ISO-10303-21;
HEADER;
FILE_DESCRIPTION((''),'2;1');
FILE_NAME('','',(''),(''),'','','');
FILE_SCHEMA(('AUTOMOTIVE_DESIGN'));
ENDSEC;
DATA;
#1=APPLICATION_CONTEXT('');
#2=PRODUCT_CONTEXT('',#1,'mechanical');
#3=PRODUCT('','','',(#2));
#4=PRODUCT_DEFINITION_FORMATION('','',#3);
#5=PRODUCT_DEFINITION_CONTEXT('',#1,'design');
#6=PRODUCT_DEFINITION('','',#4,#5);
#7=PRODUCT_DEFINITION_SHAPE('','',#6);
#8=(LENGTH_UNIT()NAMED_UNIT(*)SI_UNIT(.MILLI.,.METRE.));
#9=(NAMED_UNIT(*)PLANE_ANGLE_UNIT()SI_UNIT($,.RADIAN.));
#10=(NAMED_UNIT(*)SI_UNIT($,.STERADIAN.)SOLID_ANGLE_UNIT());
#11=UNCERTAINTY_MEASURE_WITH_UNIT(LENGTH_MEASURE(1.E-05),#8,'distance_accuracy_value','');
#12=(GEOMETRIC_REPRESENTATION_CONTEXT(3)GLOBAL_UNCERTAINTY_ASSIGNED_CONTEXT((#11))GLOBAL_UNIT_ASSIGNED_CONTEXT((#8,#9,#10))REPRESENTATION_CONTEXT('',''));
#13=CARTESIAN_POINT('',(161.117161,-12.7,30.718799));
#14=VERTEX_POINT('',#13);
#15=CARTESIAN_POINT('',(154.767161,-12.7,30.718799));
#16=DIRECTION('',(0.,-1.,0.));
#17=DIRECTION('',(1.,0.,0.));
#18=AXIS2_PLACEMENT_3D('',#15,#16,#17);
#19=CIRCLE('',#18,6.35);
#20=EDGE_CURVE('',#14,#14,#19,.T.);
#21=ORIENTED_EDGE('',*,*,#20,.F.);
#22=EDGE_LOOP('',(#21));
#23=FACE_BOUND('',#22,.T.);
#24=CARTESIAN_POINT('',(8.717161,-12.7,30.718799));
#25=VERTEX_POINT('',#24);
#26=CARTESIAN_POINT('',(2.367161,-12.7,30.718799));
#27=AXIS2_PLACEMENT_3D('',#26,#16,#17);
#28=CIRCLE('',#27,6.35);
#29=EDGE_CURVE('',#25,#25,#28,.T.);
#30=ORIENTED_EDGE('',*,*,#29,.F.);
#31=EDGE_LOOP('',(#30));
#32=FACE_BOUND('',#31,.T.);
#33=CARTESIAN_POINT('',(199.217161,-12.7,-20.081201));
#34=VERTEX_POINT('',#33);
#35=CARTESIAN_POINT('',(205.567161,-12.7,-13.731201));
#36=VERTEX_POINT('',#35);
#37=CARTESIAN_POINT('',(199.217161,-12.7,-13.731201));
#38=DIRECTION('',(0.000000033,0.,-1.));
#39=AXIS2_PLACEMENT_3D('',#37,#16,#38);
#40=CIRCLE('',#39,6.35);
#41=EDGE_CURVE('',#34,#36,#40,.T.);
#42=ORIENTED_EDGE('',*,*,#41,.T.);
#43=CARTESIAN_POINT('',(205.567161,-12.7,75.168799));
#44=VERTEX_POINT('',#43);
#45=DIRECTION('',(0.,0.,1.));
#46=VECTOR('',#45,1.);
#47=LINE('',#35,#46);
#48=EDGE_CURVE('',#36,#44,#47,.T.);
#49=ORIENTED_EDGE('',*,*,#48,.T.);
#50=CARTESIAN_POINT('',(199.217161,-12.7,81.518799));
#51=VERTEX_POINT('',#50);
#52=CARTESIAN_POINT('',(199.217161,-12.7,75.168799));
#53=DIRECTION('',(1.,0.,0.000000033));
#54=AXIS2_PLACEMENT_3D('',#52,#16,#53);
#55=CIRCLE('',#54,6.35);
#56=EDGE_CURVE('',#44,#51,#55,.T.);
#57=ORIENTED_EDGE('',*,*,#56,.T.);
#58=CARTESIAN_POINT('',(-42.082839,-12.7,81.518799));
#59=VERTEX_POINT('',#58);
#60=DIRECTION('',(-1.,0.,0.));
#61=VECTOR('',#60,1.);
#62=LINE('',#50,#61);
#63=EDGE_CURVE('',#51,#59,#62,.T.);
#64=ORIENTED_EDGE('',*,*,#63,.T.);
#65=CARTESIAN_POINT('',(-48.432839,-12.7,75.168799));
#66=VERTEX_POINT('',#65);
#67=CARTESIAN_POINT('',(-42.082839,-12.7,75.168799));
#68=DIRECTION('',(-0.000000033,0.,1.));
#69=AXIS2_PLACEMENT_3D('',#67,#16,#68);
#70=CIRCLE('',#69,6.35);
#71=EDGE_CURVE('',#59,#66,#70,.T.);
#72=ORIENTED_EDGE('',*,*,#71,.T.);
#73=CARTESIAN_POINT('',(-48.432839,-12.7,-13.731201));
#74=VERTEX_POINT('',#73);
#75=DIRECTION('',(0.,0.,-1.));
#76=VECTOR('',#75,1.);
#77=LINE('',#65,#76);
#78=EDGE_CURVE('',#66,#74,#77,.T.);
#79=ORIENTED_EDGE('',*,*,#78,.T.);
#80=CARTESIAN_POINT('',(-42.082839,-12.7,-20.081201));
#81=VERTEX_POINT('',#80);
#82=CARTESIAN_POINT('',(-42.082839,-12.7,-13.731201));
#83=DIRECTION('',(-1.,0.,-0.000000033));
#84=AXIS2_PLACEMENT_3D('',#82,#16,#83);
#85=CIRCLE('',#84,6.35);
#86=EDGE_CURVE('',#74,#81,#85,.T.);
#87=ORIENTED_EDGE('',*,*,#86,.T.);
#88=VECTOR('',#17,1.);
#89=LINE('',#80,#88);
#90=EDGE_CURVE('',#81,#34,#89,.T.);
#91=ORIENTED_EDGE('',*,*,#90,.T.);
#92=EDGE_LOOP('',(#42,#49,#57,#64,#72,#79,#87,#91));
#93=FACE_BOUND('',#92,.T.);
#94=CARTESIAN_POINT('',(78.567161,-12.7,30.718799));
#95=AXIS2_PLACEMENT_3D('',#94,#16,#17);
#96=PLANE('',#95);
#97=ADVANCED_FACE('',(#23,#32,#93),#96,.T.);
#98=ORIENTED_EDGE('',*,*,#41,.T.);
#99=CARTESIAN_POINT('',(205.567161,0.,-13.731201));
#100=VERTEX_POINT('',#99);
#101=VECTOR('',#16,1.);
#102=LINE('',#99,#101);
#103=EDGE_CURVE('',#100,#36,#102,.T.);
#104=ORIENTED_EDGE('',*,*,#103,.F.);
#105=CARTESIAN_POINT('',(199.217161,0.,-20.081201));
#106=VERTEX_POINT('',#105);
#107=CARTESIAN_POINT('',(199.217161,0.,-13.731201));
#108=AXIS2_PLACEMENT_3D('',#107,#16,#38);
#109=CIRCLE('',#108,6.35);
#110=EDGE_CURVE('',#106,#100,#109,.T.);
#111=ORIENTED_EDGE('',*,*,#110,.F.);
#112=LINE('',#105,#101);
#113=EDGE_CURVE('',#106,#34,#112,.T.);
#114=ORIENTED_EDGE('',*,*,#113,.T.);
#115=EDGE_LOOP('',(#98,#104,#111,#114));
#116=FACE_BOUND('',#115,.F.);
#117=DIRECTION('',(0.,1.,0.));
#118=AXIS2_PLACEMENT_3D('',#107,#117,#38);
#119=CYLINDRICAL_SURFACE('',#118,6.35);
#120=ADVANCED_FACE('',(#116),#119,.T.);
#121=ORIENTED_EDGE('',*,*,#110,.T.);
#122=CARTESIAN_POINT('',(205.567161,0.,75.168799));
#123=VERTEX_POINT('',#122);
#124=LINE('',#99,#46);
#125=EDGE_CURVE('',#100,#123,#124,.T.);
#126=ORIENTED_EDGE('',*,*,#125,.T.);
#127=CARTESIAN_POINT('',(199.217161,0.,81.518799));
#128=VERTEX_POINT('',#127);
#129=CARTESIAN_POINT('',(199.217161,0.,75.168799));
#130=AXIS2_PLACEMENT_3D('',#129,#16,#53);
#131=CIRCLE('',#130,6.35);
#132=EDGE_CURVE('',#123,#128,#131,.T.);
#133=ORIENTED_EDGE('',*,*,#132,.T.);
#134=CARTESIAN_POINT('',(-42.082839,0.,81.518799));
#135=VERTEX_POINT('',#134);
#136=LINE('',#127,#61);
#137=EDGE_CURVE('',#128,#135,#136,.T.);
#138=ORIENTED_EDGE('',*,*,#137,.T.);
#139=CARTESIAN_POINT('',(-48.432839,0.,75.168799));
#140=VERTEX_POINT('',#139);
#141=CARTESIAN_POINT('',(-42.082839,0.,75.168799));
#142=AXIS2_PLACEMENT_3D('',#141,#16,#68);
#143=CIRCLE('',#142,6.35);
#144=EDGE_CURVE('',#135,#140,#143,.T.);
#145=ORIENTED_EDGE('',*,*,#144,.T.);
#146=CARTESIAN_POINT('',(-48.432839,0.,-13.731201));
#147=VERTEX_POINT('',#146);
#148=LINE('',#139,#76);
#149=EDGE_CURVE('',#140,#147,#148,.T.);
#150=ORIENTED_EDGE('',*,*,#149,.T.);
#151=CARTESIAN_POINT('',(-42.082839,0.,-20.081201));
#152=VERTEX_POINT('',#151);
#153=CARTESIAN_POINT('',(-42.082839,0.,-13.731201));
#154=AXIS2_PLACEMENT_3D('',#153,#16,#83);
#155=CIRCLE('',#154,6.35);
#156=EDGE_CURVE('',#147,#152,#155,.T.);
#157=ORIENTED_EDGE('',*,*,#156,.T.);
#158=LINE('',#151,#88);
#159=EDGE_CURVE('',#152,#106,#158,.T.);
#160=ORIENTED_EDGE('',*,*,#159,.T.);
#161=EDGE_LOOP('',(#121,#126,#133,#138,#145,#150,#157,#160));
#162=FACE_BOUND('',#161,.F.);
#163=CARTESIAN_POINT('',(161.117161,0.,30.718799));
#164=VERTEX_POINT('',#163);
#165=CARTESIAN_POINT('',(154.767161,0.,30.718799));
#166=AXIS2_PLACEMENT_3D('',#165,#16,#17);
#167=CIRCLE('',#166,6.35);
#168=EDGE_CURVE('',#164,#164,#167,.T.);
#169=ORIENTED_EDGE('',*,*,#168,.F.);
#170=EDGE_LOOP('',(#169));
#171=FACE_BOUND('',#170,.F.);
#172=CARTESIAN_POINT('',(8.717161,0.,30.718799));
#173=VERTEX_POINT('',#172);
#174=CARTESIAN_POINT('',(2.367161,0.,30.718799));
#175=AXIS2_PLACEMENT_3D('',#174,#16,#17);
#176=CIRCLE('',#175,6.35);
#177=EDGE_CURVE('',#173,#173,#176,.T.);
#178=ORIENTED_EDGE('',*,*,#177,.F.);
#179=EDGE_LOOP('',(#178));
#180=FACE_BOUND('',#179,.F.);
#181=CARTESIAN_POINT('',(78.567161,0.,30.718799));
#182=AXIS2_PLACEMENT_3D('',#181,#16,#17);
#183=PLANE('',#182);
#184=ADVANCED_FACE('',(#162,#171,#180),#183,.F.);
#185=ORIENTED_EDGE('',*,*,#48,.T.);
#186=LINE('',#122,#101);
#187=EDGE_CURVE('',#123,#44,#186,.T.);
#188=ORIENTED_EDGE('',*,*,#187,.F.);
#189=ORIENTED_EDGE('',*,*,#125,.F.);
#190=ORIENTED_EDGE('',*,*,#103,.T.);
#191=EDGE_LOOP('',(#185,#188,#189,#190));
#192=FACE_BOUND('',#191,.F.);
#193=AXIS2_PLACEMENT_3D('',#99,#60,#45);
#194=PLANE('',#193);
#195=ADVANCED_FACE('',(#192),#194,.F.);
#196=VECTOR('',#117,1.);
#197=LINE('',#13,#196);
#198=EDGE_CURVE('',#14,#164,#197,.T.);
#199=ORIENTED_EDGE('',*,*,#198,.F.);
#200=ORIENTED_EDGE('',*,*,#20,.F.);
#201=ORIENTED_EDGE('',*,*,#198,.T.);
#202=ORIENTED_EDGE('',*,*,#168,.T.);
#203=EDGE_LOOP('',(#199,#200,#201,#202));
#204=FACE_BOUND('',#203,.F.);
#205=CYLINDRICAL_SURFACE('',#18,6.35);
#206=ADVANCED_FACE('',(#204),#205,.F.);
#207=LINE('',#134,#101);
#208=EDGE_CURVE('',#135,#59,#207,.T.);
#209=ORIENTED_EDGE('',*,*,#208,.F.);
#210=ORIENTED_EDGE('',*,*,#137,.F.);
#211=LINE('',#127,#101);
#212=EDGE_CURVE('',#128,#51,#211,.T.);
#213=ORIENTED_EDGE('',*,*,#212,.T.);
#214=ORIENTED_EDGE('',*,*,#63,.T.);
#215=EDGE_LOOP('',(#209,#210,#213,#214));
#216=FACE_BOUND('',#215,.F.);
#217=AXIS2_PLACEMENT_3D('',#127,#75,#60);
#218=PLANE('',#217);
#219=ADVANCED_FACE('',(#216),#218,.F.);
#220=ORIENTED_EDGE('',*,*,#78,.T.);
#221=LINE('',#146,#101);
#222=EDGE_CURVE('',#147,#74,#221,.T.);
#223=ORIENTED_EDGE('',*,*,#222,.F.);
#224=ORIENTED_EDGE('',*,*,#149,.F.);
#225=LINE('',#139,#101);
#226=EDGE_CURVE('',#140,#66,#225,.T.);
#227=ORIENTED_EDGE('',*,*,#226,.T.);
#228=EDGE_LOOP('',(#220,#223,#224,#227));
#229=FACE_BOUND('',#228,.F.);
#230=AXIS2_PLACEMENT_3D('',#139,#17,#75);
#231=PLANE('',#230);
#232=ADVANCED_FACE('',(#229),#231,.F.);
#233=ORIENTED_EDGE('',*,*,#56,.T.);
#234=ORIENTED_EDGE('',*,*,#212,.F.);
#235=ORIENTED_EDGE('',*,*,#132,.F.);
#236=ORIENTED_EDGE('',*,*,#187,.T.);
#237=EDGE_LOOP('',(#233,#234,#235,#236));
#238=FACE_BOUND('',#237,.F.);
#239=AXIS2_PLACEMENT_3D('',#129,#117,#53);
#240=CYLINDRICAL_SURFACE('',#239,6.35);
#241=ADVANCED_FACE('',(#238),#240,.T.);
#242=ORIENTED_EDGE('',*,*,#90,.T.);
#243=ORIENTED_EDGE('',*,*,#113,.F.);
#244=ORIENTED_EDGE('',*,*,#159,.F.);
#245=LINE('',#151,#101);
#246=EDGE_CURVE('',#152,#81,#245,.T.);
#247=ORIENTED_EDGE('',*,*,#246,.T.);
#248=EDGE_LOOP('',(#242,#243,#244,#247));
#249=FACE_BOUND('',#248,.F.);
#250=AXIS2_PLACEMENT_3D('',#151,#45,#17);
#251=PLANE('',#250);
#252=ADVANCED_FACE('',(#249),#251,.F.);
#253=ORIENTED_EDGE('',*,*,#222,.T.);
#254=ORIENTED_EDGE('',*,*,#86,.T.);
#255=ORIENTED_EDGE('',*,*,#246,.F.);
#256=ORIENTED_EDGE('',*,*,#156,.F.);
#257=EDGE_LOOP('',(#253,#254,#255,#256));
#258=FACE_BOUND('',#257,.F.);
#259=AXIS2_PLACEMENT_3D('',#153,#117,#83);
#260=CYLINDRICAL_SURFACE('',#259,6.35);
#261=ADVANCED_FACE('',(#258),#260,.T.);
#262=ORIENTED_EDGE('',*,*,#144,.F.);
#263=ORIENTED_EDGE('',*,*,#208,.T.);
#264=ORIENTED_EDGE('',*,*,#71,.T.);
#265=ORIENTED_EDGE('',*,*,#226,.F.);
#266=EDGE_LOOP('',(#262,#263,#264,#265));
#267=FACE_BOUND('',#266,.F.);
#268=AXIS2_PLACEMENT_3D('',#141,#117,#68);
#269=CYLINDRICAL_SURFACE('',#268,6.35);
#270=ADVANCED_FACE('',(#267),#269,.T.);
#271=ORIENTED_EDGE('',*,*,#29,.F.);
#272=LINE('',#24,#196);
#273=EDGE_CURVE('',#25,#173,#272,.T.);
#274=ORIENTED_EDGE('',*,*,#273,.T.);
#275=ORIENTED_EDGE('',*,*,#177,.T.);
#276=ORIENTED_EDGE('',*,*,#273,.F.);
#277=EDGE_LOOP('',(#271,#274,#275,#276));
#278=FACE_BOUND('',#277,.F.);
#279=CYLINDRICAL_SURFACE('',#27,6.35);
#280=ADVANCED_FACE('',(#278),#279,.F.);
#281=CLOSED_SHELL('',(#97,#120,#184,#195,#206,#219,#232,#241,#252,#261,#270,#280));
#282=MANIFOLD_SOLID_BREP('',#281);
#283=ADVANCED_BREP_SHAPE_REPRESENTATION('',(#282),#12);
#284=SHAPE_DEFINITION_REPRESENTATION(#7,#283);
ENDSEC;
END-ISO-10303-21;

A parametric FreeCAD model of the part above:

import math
import FreeCAD as App
import Part
import Sketcher
Q = App.Units.Quantity

doc = App.newDocument("Part")
body = doc.addObject("PartDesign::Body", "Body")

sketch1 = doc.addObject("Sketcher::SketchObject", "Sketch")
body.addObject(sketch1)
sketch1.AttachmentSupport = (doc.XZ_Plane, [""])
sketch1.MapMode = "FlatFace"
sketch1.addGeometry(Part.LineSegment(App.Vector(199.217161, 81.518799, 0), App.Vector(-42.082839, 81.518799, 0)), False)
sketch1.addGeometry(Part.ArcOfCircle(Part.Circle(App.Vector(-42.082839, 75.168799, 0), App.Vector(0, 0, 1), 6.35), math.radians(90.000002), math.radians(179.999998)), False)
sketch1.addGeometry(Part.LineSegment(App.Vector(-48.432839, 75.168799, 0), App.Vector(-48.432839, -13.731201, 0)), False)
sketch1.addGeometry(Part.ArcOfCircle(Part.Circle(App.Vector(-42.082839, -13.731201, 0), App.Vector(0, 0, 1), 6.35), math.radians(-179.999998), math.radians(-90.000002)), False)
sketch1.addGeometry(Part.LineSegment(App.Vector(-42.082839, -20.081201, 0), App.Vector(199.217161, -20.081201, 0)), False)
sketch1.addGeometry(Part.ArcOfCircle(Part.Circle(App.Vector(199.217161, -13.731201, 0), App.Vector(0, 0, 1), 6.35), math.radians(-89.999998), math.radians(-0.000002)), False)
sketch1.addGeometry(Part.LineSegment(App.Vector(205.567161, -13.731201, 0), App.Vector(205.567161, 75.168799, 0)), False)
sketch1.addGeometry(Part.ArcOfCircle(Part.Circle(App.Vector(199.217161, 75.168799, 0), App.Vector(0, 0, 1), 6.35), math.radians(0.000002), math.radians(89.999998)), False)
sketch1.addConstraint(Sketcher.Constraint("Tangent", 0, 2, 1, 1))
sketch1.addConstraint(Sketcher.Constraint("Tangent", 1, 2, 2, 1))
sketch1.addConstraint(Sketcher.Constraint("Tangent", 2, 2, 3, 1))
sketch1.addConstraint(Sketcher.Constraint("Tangent", 3, 2, 4, 1))
sketch1.addConstraint(Sketcher.Constraint("Tangent", 4, 2, 5, 1))
sketch1.addConstraint(Sketcher.Constraint("Tangent", 5, 2, 6, 1))
sketch1.addConstraint(Sketcher.Constraint("Tangent", 6, 2, 7, 1))
sketch1.addConstraint(Sketcher.Constraint("Tangent", 7, 2, 0, 1))
sketch1.addConstraint(Sketcher.Constraint("Horizontal", 0))
sketch1.addConstraint(Sketcher.Constraint("Vertical", 2))
sketch1.addConstraint(Sketcher.Constraint("Horizontal", 4))
sketch1.addConstraint(Sketcher.Constraint("Vertical", 6))
sketch1.addConstraint(Sketcher.Constraint("Equal", 1, 3))
sketch1.addConstraint(Sketcher.Constraint("Equal", 3, 5))
sketch1.addConstraint(Sketcher.Constraint("Equal", 5, 7))
sketch1.addConstraint(Sketcher.Constraint("Radius", 1, Q("0.25 in")))
sketch1.addConstraint(Sketcher.Constraint("DistanceX", 0, 2, 0, 1, Q("9.5 in")))
sketch1.addConstraint(Sketcher.Constraint("DistanceY", 2, 2, 2, 1, Q("3.5 in")))
sketch1.addConstraint(Sketcher.Constraint("DistanceY", -1, 1, 1, 3, 75.168799))
sketch1.addConstraint(Sketcher.Constraint("DistanceX", 1, 3, -1, 1, 42.082839))
pad1 = doc.addObject("PartDesign::Pad", "Pad")
body.addObject(pad1)
pad1.Profile = sketch1
pad1.Length = Q("0.5 in")

sketch2 = doc.addObject("Sketcher::SketchObject", "Sketch001")
body.addObject(sketch2)
sketch2.AttachmentSupport = (doc.XZ_Plane, [""])
sketch2.MapMode = "FlatFace"
sketch2.AttachmentOffset = App.Placement(App.Vector(0, 0, 0.5 * 25.4), App.Rotation())
sketch2.addGeometry(Part.Circle(App.Vector(2.367161, 30.718799, 0), App.Vector(0, 0, 1), 6.35), False)
sketch2.addGeometry(Part.Circle(App.Vector(154.767161, 30.718799, 0), App.Vector(0, 0, 1), 6.35), False)
sketch2.addConstraint(Sketcher.Constraint("Equal", 0, 1))
sketch2.addConstraint(Sketcher.Constraint("Horizontal", 0, 3, 1, 3))
sketch2.addConstraint(Sketcher.Constraint("Diameter", 0, Q("0.5 in")))
sketch2.addConstraint(Sketcher.Constraint("DistanceX", 0, 3, 1, 3, Q("6 in")))
sketch2.addConstraint(Sketcher.Constraint("DistanceY", -1, 1, 0, 3, 30.718799))
sketch2.addConstraint(Sketcher.Constraint("DistanceX", -1, 1, 0, 3, 2.367161))
pocket1 = doc.addObject("PartDesign::Pocket", "Pocket")
body.addObject(pocket1)
pocket1.Profile = sketch2
pocket1.Length = Q("1 in")

doc.recompute()
